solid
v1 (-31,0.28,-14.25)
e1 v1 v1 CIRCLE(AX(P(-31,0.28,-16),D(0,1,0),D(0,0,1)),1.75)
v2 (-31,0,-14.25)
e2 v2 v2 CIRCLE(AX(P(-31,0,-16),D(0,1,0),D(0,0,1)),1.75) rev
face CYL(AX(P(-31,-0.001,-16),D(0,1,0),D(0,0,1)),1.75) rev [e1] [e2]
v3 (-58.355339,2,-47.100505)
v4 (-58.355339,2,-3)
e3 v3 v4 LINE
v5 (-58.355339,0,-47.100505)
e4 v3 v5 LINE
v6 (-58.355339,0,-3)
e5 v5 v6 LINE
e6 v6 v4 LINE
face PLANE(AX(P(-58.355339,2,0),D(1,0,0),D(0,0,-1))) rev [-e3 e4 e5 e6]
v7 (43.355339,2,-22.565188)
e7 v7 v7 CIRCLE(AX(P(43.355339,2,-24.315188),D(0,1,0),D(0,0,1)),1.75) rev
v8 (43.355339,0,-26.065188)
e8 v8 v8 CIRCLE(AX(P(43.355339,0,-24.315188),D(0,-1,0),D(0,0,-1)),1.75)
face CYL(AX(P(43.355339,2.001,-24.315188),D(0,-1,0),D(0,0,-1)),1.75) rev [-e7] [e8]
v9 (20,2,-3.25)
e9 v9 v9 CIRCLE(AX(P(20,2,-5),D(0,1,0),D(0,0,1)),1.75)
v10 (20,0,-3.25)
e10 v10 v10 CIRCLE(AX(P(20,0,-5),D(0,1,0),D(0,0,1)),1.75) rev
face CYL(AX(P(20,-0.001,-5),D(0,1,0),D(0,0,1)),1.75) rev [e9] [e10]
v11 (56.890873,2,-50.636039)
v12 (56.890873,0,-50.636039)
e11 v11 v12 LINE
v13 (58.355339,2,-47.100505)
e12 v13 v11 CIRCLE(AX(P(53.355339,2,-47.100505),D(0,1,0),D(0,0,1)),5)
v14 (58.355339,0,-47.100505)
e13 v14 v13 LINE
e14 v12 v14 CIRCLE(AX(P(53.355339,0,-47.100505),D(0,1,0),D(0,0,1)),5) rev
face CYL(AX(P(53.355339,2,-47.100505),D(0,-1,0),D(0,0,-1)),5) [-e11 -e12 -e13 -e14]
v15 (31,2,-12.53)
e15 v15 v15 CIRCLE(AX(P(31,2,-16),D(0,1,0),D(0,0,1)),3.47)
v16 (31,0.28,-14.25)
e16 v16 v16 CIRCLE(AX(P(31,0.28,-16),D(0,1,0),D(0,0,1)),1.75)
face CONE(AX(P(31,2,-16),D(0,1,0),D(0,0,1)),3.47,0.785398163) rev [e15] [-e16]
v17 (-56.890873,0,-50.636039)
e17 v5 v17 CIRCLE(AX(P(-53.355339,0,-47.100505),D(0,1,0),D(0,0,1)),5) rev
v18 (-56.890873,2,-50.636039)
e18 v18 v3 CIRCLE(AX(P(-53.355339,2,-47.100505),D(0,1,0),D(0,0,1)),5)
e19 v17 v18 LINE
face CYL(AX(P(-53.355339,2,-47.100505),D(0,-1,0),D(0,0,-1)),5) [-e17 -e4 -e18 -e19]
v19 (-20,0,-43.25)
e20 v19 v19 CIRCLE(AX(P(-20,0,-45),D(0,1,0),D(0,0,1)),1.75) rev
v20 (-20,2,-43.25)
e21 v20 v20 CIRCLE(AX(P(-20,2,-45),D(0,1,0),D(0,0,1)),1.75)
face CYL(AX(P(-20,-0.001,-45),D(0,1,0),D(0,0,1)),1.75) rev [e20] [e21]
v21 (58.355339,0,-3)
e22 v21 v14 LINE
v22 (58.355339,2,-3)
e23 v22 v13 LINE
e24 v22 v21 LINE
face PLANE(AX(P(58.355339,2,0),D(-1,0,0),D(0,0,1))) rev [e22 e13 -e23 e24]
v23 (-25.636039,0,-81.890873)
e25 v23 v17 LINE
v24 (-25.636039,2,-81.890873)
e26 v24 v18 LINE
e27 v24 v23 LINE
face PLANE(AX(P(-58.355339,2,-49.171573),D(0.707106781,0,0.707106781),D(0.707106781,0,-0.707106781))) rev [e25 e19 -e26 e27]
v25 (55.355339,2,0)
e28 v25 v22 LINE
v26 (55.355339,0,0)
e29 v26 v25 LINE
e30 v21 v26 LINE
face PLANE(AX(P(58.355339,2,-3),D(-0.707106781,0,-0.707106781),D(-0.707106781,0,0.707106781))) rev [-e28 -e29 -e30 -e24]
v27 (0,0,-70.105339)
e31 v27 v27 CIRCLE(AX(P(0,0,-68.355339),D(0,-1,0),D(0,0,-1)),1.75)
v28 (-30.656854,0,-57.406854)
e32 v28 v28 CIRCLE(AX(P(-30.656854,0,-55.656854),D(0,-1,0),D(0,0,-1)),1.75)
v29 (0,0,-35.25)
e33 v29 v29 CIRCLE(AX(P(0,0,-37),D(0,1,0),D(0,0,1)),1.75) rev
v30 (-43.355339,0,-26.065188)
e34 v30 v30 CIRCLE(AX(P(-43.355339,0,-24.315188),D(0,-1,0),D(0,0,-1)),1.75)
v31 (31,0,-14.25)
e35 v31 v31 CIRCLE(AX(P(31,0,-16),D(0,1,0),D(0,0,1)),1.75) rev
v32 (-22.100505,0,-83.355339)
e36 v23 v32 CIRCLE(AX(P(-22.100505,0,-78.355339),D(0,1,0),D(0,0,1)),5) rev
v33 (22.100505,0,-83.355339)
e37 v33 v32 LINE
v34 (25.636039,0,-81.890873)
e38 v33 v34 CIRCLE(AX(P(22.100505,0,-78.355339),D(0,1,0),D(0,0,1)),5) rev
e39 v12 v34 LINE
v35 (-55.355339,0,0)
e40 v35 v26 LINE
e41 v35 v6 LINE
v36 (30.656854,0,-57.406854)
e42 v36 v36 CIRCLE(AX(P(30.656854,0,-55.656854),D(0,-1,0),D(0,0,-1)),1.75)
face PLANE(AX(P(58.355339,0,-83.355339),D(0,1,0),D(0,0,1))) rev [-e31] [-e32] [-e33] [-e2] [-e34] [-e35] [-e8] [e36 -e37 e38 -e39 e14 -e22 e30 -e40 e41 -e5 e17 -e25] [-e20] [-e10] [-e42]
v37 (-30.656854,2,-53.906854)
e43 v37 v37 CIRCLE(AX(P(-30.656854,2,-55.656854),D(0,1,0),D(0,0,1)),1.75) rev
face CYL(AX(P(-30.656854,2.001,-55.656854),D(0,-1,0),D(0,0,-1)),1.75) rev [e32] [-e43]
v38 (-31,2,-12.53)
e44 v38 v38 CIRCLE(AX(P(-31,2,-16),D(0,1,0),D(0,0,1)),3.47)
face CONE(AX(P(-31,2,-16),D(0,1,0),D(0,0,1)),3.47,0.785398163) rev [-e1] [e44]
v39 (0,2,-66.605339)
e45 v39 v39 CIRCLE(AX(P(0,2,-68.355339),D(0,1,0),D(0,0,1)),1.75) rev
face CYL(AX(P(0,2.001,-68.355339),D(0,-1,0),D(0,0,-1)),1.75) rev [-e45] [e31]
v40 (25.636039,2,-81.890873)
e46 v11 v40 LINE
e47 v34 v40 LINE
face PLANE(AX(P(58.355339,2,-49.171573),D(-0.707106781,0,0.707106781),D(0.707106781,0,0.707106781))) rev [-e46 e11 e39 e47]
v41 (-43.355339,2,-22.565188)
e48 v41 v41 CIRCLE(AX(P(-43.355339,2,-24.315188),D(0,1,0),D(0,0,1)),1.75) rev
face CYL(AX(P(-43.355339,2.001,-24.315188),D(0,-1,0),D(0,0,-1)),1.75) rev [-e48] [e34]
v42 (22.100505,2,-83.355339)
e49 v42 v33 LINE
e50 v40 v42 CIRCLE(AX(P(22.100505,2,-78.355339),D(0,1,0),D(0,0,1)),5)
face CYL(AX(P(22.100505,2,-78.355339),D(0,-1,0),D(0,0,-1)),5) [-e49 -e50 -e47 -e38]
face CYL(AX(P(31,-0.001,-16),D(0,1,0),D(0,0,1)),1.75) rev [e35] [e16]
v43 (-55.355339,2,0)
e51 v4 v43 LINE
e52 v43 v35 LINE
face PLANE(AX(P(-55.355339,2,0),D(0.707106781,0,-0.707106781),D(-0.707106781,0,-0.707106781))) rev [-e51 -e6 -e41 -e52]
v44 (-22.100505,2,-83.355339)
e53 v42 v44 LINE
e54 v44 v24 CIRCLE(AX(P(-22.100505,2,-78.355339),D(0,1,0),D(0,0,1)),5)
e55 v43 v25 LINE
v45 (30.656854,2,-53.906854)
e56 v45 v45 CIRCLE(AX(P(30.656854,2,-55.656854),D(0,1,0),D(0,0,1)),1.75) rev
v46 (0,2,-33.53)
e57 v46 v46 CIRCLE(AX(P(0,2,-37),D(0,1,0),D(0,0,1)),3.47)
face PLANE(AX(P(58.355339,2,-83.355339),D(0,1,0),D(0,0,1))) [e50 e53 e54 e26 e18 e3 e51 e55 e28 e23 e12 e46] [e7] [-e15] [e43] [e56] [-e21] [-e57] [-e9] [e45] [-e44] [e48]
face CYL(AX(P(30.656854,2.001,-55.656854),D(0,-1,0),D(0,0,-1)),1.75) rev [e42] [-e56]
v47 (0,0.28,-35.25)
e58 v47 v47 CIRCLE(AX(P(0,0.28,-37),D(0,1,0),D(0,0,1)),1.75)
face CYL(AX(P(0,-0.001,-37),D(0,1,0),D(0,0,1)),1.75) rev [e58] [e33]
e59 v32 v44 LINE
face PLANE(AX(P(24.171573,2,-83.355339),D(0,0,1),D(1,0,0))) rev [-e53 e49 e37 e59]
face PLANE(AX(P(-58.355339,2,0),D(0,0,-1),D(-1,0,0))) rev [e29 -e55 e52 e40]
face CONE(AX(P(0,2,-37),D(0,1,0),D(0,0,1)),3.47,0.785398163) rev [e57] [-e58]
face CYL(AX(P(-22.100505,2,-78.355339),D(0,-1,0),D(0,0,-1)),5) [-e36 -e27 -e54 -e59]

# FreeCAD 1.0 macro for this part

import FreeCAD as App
import Part
import Sketcher
from FreeCAD import Vector
Q = App.Units.Quantity


def edges_at(feature, points):
    """Names of the edges that pass closest to the given points."""
    edges = feature.Shape.Edges
    near = lambda p: min(range(len(edges)), key=lambda i: edges[i].distToShape(Part.Vertex(*p))[0])
    return sorted({f"Edge{near(p) + 1}" for p in points})

doc = App.newDocument("Part")
body = doc.addObject("PartDesign::Body", "Body")

# Sketch on XZ plane
sketch1 = body.newObject("Sketcher::SketchObject", "Sketch")
sketch1.AttachmentSupport = (doc.getObject("XZ_Plane"), [""])
sketch1.MapMode = "FlatFace"
sketch1.addGeometry([
    Part.LineSegment(Vector(-58.355339, 0, 0), Vector(58.355339, 0, 0)),  # 0
    Part.LineSegment(Vector(58.355339, 0, 0), Vector(58.355339, -49.171573, 0)),  # 1
    Part.LineSegment(Vector(58.355339, -49.171573, 0), Vector(24.171573, -83.355339, 0)),  # 2
    Part.LineSegment(Vector(24.171573, -83.355339, 0), Vector(-24.171573, -83.355339, 0)),  # 3
    Part.LineSegment(Vector(-24.171573, -83.355339, 0), Vector(-58.355339, -49.171573, 0)),  # 4
    Part.LineSegment(Vector(-58.355339, -49.171573, 0), Vector(-58.355339, 0, 0)),  # 5
], False)
sketch1.addConstraint([
    Sketcher.Constraint("Coincident", 0, 2, 1, 1),
    Sketcher.Constraint("Coincident", 1, 2, 2, 1),
    Sketcher.Constraint("Coincident", 2, 2, 3, 1),
    Sketcher.Constraint("Coincident", 3, 2, 4, 1),
    Sketcher.Constraint("Coincident", 4, 2, 5, 1),
    Sketcher.Constraint("Coincident", 5, 2, 0, 1),
    Sketcher.Constraint("Horizontal", 0),
    Sketcher.Constraint("Vertical", 1),
    Sketcher.Constraint("Horizontal", 3),
    Sketcher.Constraint("Vertical", 5),
    Sketcher.Constraint("Symmetric", 0, 2, 5, 2, -1, 1),
    Sketcher.Constraint("Perpendicular", 2, 4),
    Sketcher.Constraint("Horizontal", 1, 2, 4, 2),
    Sketcher.Constraint("Equal", 2, 4),
    Sketcher.Constraint("DistanceX", 0, 1, 0, 2, 116.710678),
    Sketcher.Constraint("DistanceX", 3, 2, 3, 1, 48.343146),
    Sketcher.Constraint("DistanceY", 1, 2, 1, 1, 49.171573),
])
pad1 = body.newObject("PartDesign::Pad", "Pad")
pad1.Profile = sketch1
pad1.Length = 2
pad1.Reversed = True

# Sketch on XZ plane
sketch2 = body.newObject("Sketcher::SketchObject", "Sketch001")
sketch2.AttachmentSupport = (doc.getObject("XZ_Plane"), [""])
sketch2.MapMode = "FlatFace"
sketch2.addGeometry(Part.Circle(Vector(-43.355339, -24.315188, 0), Vector(0, 0, 1), 1.75), False)
sketch2.addConstraint([
    Sketcher.Constraint("Diameter", 0, 3.5),
    Sketcher.Constraint("DistanceX", 0, 3, -1, 1, 43.355339),
    Sketcher.Constraint("DistanceY", 0, 3, -1, 1, 24.315188),
])
pocket1 = body.newObject("PartDesign::Pocket", "Pocket")
pocket1.Profile = sketch2
pocket1.Type = "UpToFirst"

# Sketch on XZ plane
sketch3 = body.newObject("Sketcher::SketchObject", "Sketch002")
sketch3.AttachmentSupport = (doc.getObject("XZ_Plane"), [""])
sketch3.MapMode = "FlatFace"
sketch3.addGeometry(Part.Circle(Vector(-30.656854, -55.656854, 0), Vector(0, 0, 1), 1.75), False)
sketch3.addConstraint([
    Sketcher.Constraint("Diameter", 0, 3.5),
    Sketcher.Constraint("DistanceX", 0, 3, -1, 1, 30.656854),
    Sketcher.Constraint("DistanceY", 0, 3, -1, 1, 55.656854),
])
pocket2 = body.newObject("PartDesign::Pocket", "Pocket001")
pocket2.Profile = sketch3
pocket2.Type = "UpToFirst"

# Sketch on XZ plane
sketch4 = body.newObject("Sketcher::SketchObject", "Sketch003")
sketch4.AttachmentSupport = (doc.getObject("XZ_Plane"), [""])
sketch4.MapMode = "FlatFace"
sketch4.addGeometry(Part.Circle(Vector(0, -68.355339, 0), Vector(0, 0, 1), 1.75), False)
sketch4.addConstraint([
    Sketcher.Constraint("PointOnObject", 0, 3, -2),
    Sketcher.Constraint("Diameter", 0, 3.5),
    Sketcher.Constraint("DistanceY", 0, 3, -1, 1, 68.355339),
])
pocket3 = body.newObject("PartDesign::Pocket", "Pocket002")
pocket3.Profile = sketch4
pocket3.Type = "UpToFirst"

# Sketch on XZ plane
sketch5 = body.newObject("Sketcher::SketchObject", "Sketch004")
sketch5.AttachmentSupport = (doc.getObject("XZ_Plane"), [""])
sketch5.MapMode = "FlatFace"
sketch5.addGeometry(Part.Circle(Vector(30.656854, -55.656854, 0), Vector(0, 0, 1), 1.75), False)
sketch5.addConstraint([
    Sketcher.Constraint("Diameter", 0, 3.5),
    Sketcher.Constraint("DistanceX", -1, 1, 0, 3, 30.656854),
    Sketcher.Constraint("DistanceY", 0, 3, -1, 1, 55.656854),
])
pocket4 = body.newObject("PartDesign::Pocket", "Pocket003")
pocket4.Profile = sketch5
pocket4.Type = "UpToFirst"

# Sketch on XZ plane
sketch6 = body.newObject("Sketcher::SketchObject", "Sketch005")
sketch6.AttachmentSupport = (doc.getObject("XZ_Plane"), [""])
sketch6.MapMode = "FlatFace"
sketch6.addGeometry(Part.Circle(Vector(43.355339, -24.315188, 0), Vector(0, 0, 1), 1.75), False)
sketch6.addConstraint([
    Sketcher.Constraint("Diameter", 0, 3.5),
    Sketcher.Constraint("DistanceX", -1, 1, 0, 3, 43.355339),
    Sketcher.Constraint("DistanceY", 0, 3, -1, 1, 24.315188),
])
pocket5 = body.newObject("PartDesign::Pocket", "Pocket004")
pocket5.Profile = sketch6
pocket5.Type = "UpToFirst"
doc.recompute()

chamfer = body.newObject("PartDesign::Chamfer", "Chamfer")
chamfer.Base = (pocket5, edges_at(pocket5, [(58.355, 1, 0), (-58.355, 1, 0)]))
chamfer.Size = 3
doc.recompute()

fillet = body.newObject("PartDesign::Fillet", "Fillet")
fillet.Base = (chamfer, edges_at(chamfer, [
    (-58.355, 1, -49.172),
    (-24.172, 1, -83.355),
    (24.172, 1, -83.355),
    (58.355, 1, -49.172),
]))
fillet.Radius = 5

# Sketch on XZ plane
sketch7 = body.newObject("Sketcher::SketchObject", "Sketch006")
sketch7.AttachmentSupport = (doc.getObject("XZ_Plane"), [""])
sketch7.MapMode = "FlatFace"
sketch7.AttachmentOffset = App.Placement(Vector(0, 0, -2), App.Rotation())
sketch7.addGeometry(Part.Circle(Vector(-20, -45, 0), Vector(0, 0, 1), 1.75), False)
sketch7.addConstraint([
    Sketcher.Constraint("Diameter", 0, 3.5),
    Sketcher.Constraint("DistanceX", 0, 3, -1, 1, 20.0),
    Sketcher.Constraint("DistanceY", 0, 3, -1, 1, 45.0),
])
pocket6 = body.newObject("PartDesign::Pocket", "Pocket005")
pocket6.Profile = sketch7
pocket6.Type = "UpToFirst"
pocket6.Reversed = True

# Sketch on XZ plane
sketch8 = body.newObject("Sketcher::SketchObject", "Sketch007")
sketch8.AttachmentSupport = (doc.getObject("XZ_Plane"), [""])
sketch8.MapMode = "FlatFace"
sketch8.AttachmentOffset = App.Placement(Vector(0, 0, -2), App.Rotation())
sketch8.addGeometry(Part.Circle(Vector(20, -5, 0), Vector(0, 0, 1), 1.75), False)
sketch8.addConstraint([
    Sketcher.Constraint("Diameter", 0, 3.5),
    Sketcher.Constraint("DistanceX", -1, 1, 0, 3, 20.0),
    Sketcher.Constraint("DistanceY", 0, 3, -1, 1, 5.0),
])
pocket7 = body.newObject("PartDesign::Pocket", "Pocket006")
pocket7.Profile = sketch8
pocket7.Type = "UpToFirst"
pocket7.Reversed = True

# Sketch on XZ plane
sketch9 = body.newObject("Sketcher::SketchObject", "Sketch008")
sketch9.AttachmentSupport = (doc.getObject("XZ_Plane"), [""])
sketch9.MapMode = "FlatFace"
sketch9.AttachmentOffset = App.Placement(Vector(0, 0, -2), App.Rotation())
sketch9.addGeometry(Part.Circle(Vector(0, -37, 0), Vector(0, 0, 1), 1.75), False)
sketch9.addConstraint([
    Sketcher.Constraint("PointOnObject", 0, 3, -2),
    Sketcher.Constraint("Diameter", 0, 3.5),
    Sketcher.Constraint("DistanceY", 0, 3, -1, 1, 37.0),
])
pocket8 = body.newObject("PartDesign::Pocket", "Pocket007")
pocket8.Profile = sketch9
pocket8.Type = "UpToFirst"
pocket8.Reversed = True

# Sketch on XZ plane
sketch10 = body.newObject("Sketcher::SketchObject", "Sketch009")
sketch10.AttachmentSupport = (doc.getObject("XZ_Plane"), [""])
sketch10.MapMode = "FlatFace"
sketch10.AttachmentOffset = App.Placement(Vector(0, 0, -2), App.Rotation())
sketch10.addGeometry(Part.Circle(Vector(-31, -16, 0), Vector(0, 0, 1), 1.75), False)
sketch10.addConstraint([
    Sketcher.Constraint("Diameter", 0, 3.5),
    Sketcher.Constraint("DistanceX", 0, 3, -1, 1, 31.0),
    Sketcher.Constraint("DistanceY", 0, 3, -1, 1, 16.0),
])
pocket9 = body.newObject("PartDesign::Pocket", "Pocket008")
pocket9.Profile = sketch10
pocket9.Type = "UpToFirst"
pocket9.Reversed = True

# Sketch on XZ plane
sketch11 = body.newObject("Sketcher::SketchObject", "Sketch010")
sketch11.AttachmentSupport = (doc.getObject("XZ_Plane"), [""])
sketch11.MapMode = "FlatFace"
sketch11.AttachmentOffset = App.Placement(Vector(0, 0, -2), App.Rotation())
sketch11.addGeometry(Part.Circle(Vector(31, -16, 0), Vector(0, 0, 1), 1.75), False)
sketch11.addConstraint([
    Sketcher.Constraint("Diameter", 0, 3.5),
    Sketcher.Constraint("DistanceX", -1, 1, 0, 3, 31.0),
    Sketcher.Constraint("DistanceY", 0, 3, -1, 1, 16.0),
])
pocket10 = body.newObject("PartDesign::Pocket", "Pocket009")
pocket10.Profile = sketch11
pocket10.Type = "UpToFirst"
pocket10.Reversed = True

# Sketch on YZ plane
sketch12 = body.newObject("Sketcher::SketchObject", "Sketch011")
sketch12.AttachmentSupport = (doc.getObject("YZ_Plane"), [""])
sketch12.MapMode = "FlatFace"
sketch12.addGeometry([
    Part.LineSegment(Vector(0, -37, 0), Vector(2, -37, 0)),  # 0
    Part.LineSegment(Vector(2, -37, 0), Vector(2, -33.53, 0)),  # 1
    Part.LineSegment(Vector(2, -33.53, 0), Vector(0.23, -35.3, 0)),  # 2
    Part.LineSegment(Vector(0.23, -35.3, 0), Vector(0, -35.3, 0)),  # 3
    Part.LineSegment(Vector(0, -35.3, 0), Vector(0, -37, 0)),  # 4
], False)
sketch12.addGeometry(Part.LineSegment(Vector(2, -37, 0), Vector(0, -37, 0)), True)  # axis
sketch12.addConstraint([
    Sketcher.Constraint("Coincident", 0, 2, 1, 1),
    Sketcher.Constraint("Coincident", 1, 2, 2, 1),
    Sketcher.Constraint("Coincident", 2, 2, 3, 1),
    Sketcher.Constraint("Coincident", 3, 2, 4, 1),
    Sketcher.Constraint("Coincident", 4, 2, 0, 1),
    Sketcher.Constraint("Horizontal", 0),
    Sketcher.Constraint("Vertical", 1),
    Sketcher.Constraint("Horizontal", 3),
    Sketcher.Constraint("Vertical", 4),
    Sketcher.Constraint("Horizontal", 5),
    Sketcher.Constraint("Coincident", 5, 1, 0, 2),
    Sketcher.Constraint("PointOnObject", 3, 2, -2),
    Sketcher.Constraint("PointOnObject", 5, 2, -2),
    Sketcher.Constraint("DistanceX", 0, 1, 0, 2, 2.0),
    Sketcher.Constraint("Angle", 2, Q("-135 deg")),
    Sketcher.Constraint("DistanceY", 4, 2, 4, 1, 1.7),
    Sketcher.Constraint("DistanceY", 0, 2, -1, 1, 37.0),
    Sketcher.Constraint("DistanceX", 3, 2, 3, 1, 0.23),
])
groove = body.newObject("PartDesign::Groove", "Groove")
groove.Profile = sketch12
groove.ReferenceAxis = (sketch12, ["Axis0"])
groove.Angle = 360
doc.recompute()

datumline = body.newObject("PartDesign::Line", "DatumLine")
datumline.Placement = App.Placement(Vector(0, 0, 0), App.Rotation(Vector(0, 0, 1), Vector(-0.82791869, 0, 0.560848145)))
linearpattern = body.newObject("PartDesign::LinearPattern", "LinearPattern")
linearpattern.Originals = [groove]
linearpattern.Direction = (datumline, [""])
linearpattern.Mode = "offset"
linearpattern.Offset = 37.44329
linearpattern.Occurrences = 2
body.Tip = linearpattern
doc.recompute()

datumline2 = body.newObject("PartDesign::Line", "DatumLine001")
datumline2.Placement = App.Placement(Vector(0, 0, 0), App.Rotation(Vector(0, 0, 1), Vector(0.82791869, 0, 0.560848145)))
linearpattern2 = body.newObject("PartDesign::LinearPattern", "LinearPattern001")
linearpattern2.Originals = [groove]
linearpattern2.Direction = (datumline2, [""])
linearpattern2.Mode = "offset"
linearpattern2.Offset = 37.44329
linearpattern2.Occurrences = 2
body.Tip = linearpattern2

doc.recompute()
